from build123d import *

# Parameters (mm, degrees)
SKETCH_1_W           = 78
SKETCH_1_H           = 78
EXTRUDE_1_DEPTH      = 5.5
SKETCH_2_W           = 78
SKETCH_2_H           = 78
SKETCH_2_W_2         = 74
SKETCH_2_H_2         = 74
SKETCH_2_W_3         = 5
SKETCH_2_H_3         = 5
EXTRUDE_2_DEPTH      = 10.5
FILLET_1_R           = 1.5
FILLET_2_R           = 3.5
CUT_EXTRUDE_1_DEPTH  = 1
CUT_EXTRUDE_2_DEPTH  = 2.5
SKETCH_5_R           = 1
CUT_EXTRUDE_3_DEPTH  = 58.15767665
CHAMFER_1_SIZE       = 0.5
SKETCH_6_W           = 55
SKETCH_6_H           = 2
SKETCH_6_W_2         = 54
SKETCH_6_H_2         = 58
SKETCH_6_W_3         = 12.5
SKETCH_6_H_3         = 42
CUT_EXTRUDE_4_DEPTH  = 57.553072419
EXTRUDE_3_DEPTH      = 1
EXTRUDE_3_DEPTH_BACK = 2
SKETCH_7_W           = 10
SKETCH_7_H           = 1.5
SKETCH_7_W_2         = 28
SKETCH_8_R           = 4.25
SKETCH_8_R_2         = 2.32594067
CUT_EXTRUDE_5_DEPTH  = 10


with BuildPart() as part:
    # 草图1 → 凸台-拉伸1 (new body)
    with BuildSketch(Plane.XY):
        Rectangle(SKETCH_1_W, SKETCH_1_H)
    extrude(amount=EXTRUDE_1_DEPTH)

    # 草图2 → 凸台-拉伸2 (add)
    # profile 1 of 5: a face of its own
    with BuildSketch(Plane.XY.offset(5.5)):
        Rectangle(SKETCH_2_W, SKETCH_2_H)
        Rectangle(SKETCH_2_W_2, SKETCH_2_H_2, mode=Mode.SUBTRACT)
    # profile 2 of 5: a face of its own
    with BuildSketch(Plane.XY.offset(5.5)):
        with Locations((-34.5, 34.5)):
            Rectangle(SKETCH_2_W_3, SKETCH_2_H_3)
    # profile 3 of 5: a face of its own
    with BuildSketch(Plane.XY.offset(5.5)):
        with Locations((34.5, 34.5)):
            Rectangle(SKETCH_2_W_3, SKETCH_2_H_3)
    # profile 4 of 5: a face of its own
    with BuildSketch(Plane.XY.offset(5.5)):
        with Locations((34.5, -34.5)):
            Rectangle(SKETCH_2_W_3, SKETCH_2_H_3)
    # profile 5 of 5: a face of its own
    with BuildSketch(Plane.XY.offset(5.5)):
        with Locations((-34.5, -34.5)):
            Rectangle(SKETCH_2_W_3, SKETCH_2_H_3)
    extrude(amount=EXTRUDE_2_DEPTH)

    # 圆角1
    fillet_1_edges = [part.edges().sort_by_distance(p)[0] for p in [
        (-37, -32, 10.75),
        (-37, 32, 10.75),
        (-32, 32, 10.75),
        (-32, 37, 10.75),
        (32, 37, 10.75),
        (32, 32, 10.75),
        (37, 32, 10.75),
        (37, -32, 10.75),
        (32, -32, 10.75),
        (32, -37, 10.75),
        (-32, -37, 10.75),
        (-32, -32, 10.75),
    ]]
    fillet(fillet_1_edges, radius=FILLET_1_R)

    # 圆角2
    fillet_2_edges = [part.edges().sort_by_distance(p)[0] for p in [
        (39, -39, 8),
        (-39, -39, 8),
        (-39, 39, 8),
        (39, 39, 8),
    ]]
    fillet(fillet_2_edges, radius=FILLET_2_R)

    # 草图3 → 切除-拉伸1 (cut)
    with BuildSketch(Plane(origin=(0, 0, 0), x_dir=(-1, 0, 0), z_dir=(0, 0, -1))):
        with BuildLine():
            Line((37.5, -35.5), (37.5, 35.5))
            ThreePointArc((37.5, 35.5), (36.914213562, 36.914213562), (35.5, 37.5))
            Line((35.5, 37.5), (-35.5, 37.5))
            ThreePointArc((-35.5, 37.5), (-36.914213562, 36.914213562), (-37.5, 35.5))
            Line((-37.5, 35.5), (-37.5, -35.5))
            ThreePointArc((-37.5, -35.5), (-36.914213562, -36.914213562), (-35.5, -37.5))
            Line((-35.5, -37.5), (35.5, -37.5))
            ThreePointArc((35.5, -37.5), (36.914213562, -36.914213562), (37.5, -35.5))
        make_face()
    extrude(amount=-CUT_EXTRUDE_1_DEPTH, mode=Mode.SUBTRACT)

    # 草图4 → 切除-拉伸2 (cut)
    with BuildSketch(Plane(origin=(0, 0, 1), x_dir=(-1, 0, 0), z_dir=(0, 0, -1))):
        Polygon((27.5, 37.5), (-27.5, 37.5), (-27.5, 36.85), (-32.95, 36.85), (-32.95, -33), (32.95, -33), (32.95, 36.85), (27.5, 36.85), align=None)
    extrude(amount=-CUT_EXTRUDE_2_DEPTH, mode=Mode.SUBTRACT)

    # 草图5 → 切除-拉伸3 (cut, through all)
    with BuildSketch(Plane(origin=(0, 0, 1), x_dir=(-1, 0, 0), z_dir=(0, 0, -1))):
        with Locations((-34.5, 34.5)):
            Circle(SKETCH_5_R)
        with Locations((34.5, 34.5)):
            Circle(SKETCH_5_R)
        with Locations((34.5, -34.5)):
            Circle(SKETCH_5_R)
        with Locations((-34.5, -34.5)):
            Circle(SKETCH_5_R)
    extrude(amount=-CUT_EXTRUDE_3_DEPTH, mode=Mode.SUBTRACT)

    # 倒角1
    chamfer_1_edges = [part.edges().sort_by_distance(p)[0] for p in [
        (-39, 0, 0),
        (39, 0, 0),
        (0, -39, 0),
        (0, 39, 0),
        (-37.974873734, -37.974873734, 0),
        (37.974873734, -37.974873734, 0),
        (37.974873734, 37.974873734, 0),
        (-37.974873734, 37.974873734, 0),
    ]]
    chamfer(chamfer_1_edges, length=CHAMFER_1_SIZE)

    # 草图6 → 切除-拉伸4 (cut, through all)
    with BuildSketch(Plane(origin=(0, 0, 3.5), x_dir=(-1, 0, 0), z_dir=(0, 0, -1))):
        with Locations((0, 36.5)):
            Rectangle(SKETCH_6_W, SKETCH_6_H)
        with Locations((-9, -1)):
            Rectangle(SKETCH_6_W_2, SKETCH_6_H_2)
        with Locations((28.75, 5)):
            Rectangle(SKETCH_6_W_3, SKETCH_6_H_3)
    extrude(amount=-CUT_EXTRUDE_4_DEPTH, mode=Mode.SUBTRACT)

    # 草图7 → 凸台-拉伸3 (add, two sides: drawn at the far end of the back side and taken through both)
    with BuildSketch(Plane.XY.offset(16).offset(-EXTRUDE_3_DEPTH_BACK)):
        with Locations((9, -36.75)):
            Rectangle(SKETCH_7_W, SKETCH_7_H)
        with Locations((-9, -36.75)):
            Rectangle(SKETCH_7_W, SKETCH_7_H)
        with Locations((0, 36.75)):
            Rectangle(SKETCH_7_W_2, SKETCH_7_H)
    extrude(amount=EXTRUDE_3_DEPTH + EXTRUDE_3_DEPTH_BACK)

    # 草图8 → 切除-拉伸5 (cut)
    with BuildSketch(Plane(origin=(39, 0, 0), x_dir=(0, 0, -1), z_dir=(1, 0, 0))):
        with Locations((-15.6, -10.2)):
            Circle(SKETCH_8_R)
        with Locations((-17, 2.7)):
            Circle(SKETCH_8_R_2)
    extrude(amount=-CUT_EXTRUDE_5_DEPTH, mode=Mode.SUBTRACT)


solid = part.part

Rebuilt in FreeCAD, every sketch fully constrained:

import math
import FreeCAD as App
import Part
import Sketcher
from FreeCAD import Vector
Q = App.Units.Quantity


def edges_at(feature, points):
    """Names of the edges that pass closest to the given points."""
    edges = feature.Shape.Edges
    near = lambda p: min(range(len(edges)), key=lambda i: edges[i].distToShape(Part.Vertex(*p))[0])
    return sorted({f"Edge{near(p) + 1}" for p in points})


def add_polygon(sketch, points):
    """Adds a closed chain of lines whose ends are joined by coincident constraints."""
    first, n = sketch.GeometryCount, len(points)
    for a, b in zip(points, points[1:] + points[:1]):
        sketch.addGeometry(Part.LineSegment(App.Vector(*a, 0), App.Vector(*b, 0)), False)
    for i in range(n):
        sketch.addConstraint(Sketcher.Constraint("Coincident", first + i, 2, first + (i + 1) % n, 1))

doc = App.newDocument("Part")
body = doc.addObject("PartDesign::Body", "Body")

# Sketch on XY plane
sketch1 = body.newObject("Sketcher::SketchObject", "Sketch")
sketch1.AttachmentSupport = (doc.getObject("XY_Plane"), [""])
sketch1.MapMode = "FlatFace"
add_polygon(sketch1, [(-39, 39), (-39, -39), (39, -39), (39, 39)])  # lines 0-3
sketch1.addConstraint([
    Sketcher.Constraint("Vertical", 0),
    Sketcher.Constraint("Horizontal", 1),
    Sketcher.Constraint("Vertical", 2),
    Sketcher.Constraint("Horizontal", 3),
    Sketcher.Constraint("Symmetric", 0, 2, 2, 2, -1, 1),
    Sketcher.Constraint("Equal", 3, 0),
    Sketcher.Constraint("DistanceX", 1, 1, 1, 2, Q("78 mm")),
])
pad1 = body.newObject("PartDesign::Pad", "Pad")
pad1.Profile = sketch1
pad1.Length = 5.5

# Sketch on XY plane
sketch2 = body.newObject("Sketcher::SketchObject", "Sketch001")
sketch2.AttachmentSupport = (doc.getObject("XY_Plane"), [""])
sketch2.MapMode = "FlatFace"
sketch2.AttachmentOffset = App.Placement(Vector(0, 0, 5.5), App.Rotation())
add_polygon(sketch2, [(-39, 39), (-39, -39), (39, -39), (39, 39)])  # lines 0-3
add_polygon(sketch2, [(32, -37), (-32, -37), (-32, -32), (-37, -32), (-37, 32), (-32, 32), (-32, 37), (32, 37), (32, 32), (37, 32), (37, -32), (32, -32)])  # lines 4-15
sketch2.addConstraint([
    Sketcher.Constraint("Vertical", 0),
    Sketcher.Constraint("Horizontal", 1),
    Sketcher.Constraint("Vertical", 2),
    Sketcher.Constraint("Horizontal", 3),
    Sketcher.Constraint("Horizontal", 4),
    Sketcher.Constraint("Vertical", 5),
    Sketcher.Constraint("Horizontal", 6),
    Sketcher.Constraint("Vertical", 7),
    Sketcher.Constraint("Horizontal", 8),
    Sketcher.Constraint("Vertical", 9),
    Sketcher.Constraint("Horizontal", 10),
    Sketcher.Constraint("Vertical", 11),
    Sketcher.Constraint("Horizontal", 12),
    Sketcher.Constraint("Vertical", 13),
    Sketcher.Constraint("Horizontal", 14),
    Sketcher.Constraint("Vertical", 15),
    Sketcher.Constraint("Symmetric", 0, 2, 2, 2, -1, 1),
    Sketcher.Constraint("Symmetric", 4, 2, 10, 2, -1, 1),
    Sketcher.Constraint("Symmetric", 6, 2, 12, 2, -1, 1),
    Sketcher.Constraint("Symmetric", 8, 2, 14, 2, -1, 1),
    Sketcher.Constraint("Symmetric", 8, 2, 11, 2, -2),
    Sketcher.Constraint("Equal", 3, 0),
    Sketcher.Constraint("Equal", 14, 5),
    Sketcher.Constraint("Equal", 10, 7),
    Sketcher.Constraint("DistanceX", 1, 1, 1, 2, Q("78 mm")),
    Sketcher.Constraint("DistanceX", 4, 2, 4, 1, Q("64 mm")),
    Sketcher.Constraint("DistanceX", 6, 2, 6, 1, Q("5 mm")),
])
pad2 = body.newObject("PartDesign::Pad", "Pad001")
pad2.Profile = sketch2
pad2.Length = 10.5
doc.recompute()

fillet = body.newObject("PartDesign::Fillet", "Fillet")
fillet.Base = (pad2, edges_at(pad2, [
    (-37, -32, 10.75),
    (-37, 32, 10.75),
    (-32, 32, 10.75),
    (-32, 37, 10.75),
    (32, 37, 10.75),
    (32, 32, 10.75),
    (37, 32, 10.75),
    (37, -32, 10.75),
    (32, -32, 10.75),
    (32, -37, 10.75),
    (-32, -37, 10.75),
    (-32, -32, 10.75),
]))
fillet.Radius = 1.5
doc.recompute()

fillet2 = body.newObject("PartDesign::Fillet", "Fillet001")
fillet2.Base = (fillet, edges_at(fillet, [
    (39, -39, 8),
    (-39, -39, 8),
    (-39, 39, 8),
    (39, 39, 8),
]))
fillet2.Radius = 3.5

# Sketch on XY plane
sketch3 = body.newObject("Sketcher::SketchObject", "Sketch002")
sketch3.AttachmentSupport = (doc.getObject("XY_Plane"), [""])
sketch3.MapMode = "FlatFace"
sketch3.addGeometry([
    Part.LineSegment(Vector(-37.5, -35.5, 0), Vector(-37.5, 35.5, 0)),  # 0
    Part.ArcOfCircle(Part.Circle(Vector(-35.5, 35.5, 0), Vector(0, 0, 1), 2), math.radians(90), math.radians(180)),  # 1
    Part.LineSegment(Vector(-35.5, 37.5, 0), Vector(35.5, 37.5, 0)),  # 2
    Part.ArcOfCircle(Part.Circle(Vector(35.5, 35.5, 0), Vector(0, 0, 1), 2), math.radians(0), math.radians(90)),  # 3
    Part.LineSegment(Vector(37.5, 35.5, 0), Vector(37.5, -35.5, 0)),  # 4
    Part.ArcOfCircle(Part.Circle(Vector(35.5, -35.5, 0), Vector(0, 0, 1), 2), math.radians(-90), math.radians(0)),  # 5
    Part.LineSegment(Vector(35.5, -37.5, 0), Vector(-35.5, -37.5, 0)),  # 6
    Part.ArcOfCircle(Part.Circle(Vector(-35.5, -35.5, 0), Vector(0, 0, 1), 2), math.radians(-180), math.radians(-90)),  # 7
], False)
sketch3.addConstraint([
    Sketcher.Constraint("Tangent", 0, 2, 1, 2),
    Sketcher.Constraint("Tangent", 1, 1, 2, 1),
    Sketcher.Constraint("Tangent", 2, 2, 3, 2),
    Sketcher.Constraint("Tangent", 3, 1, 4, 1),
    Sketcher.Constraint("Tangent", 4, 2, 5, 2),
    Sketcher.Constraint("Tangent", 5, 1, 6, 1),
    Sketcher.Constraint("Tangent", 6, 2, 7, 2),
    Sketcher.Constraint("Tangent", 7, 1, 0, 1),
    Sketcher.Constraint("Vertical", 0),
    Sketcher.Constraint("Horizontal", 2),
    Sketcher.Constraint("Vertical", 4),
    Sketcher.Constraint("Horizontal", 6),
    Sketcher.Constraint("Equal", 1, 3),
    Sketcher.Constraint("Equal", 3, 5),
    Sketcher.Constraint("Equal", 5, 7),
    Sketcher.Constraint("Symmetric", 1, 3, 5, 3, -1, 1),
    Sketcher.Constraint("Equal", 6, 0),
    Sketcher.Constraint("Radius", 1, Q("2 mm")),
    Sketcher.Constraint("DistanceX", 2, 1, 2, 2, Q("71 mm")),
])
pocket1 = body.newObject("PartDesign::Pocket", "Pocket")
pocket1.Profile = sketch3
pocket1.Length = 1
pocket1.Reversed = True

# Sketch on XY plane
sketch4 = body.newObject("Sketcher::SketchObject", "Sketch003")
sketch4.AttachmentSupport = (doc.getObject("XY_Plane"), [""])
sketch4.MapMode = "FlatFace"
sketch4.AttachmentOffset = App.Placement(Vector(0, 0, 1), App.Rotation())
add_polygon(sketch4, [(-27.5, 37.5), (27.5, 37.5), (27.5, 36.9), (33, 36.9), (33, -33), (-33, -33), (-33, 36.9), (-27.5, 36.9)])  # lines 0-7
sketch4.addConstraint([
    Sketcher.Constraint("Horizontal", 0),
    Sketcher.Constraint("Vertical", 1),
    Sketcher.Constraint("Horizontal", 2),
    Sketcher.Constraint("Vertical", 3),
    Sketcher.Constraint("Horizontal", 4),
    Sketcher.Constraint("Vertical", 5),
    Sketcher.Constraint("Horizontal", 6),
    Sketcher.Constraint("Vertical", 7),
    Sketcher.Constraint("Symmetric", 2, 2, 5, 2, -2),
    Sketcher.Constraint("Equal", 2, 6),
    Sketcher.Constraint("DistanceX", 0, 1, 0, 2, Q("55 mm")),
    Sketcher.Constraint("DistanceX", 4, 2, 4, 1, Q("65.9 mm")),
    Sketcher.Constraint("DistanceY", 3, 2, -1, 1, Q("33 mm")),
    Sketcher.Constraint("DistanceY", 1, 2, 1, 1, Q("0.65 mm")),
    Sketcher.Constraint("DistanceY", 3, 2, 3, 1, Q("69.85 mm")),
])
pocket2 = body.newObject("PartDesign::Pocket", "Pocket001")
pocket2.Profile = sketch4
pocket2.Length = 2.5
pocket2.Reversed = True

# Sketch on XY plane
sketch5 = body.newObject("Sketcher::SketchObject", "Sketch004")
sketch5.AttachmentSupport = (doc.getObject("XY_Plane"), [""])
sketch5.MapMode = "FlatFace"
sketch5.AttachmentOffset = App.Placement(Vector(0, 0, 1), App.Rotation())
sketch5.addGeometry([
    Part.Circle(Vector(34.5, 34.5, 0), Vector(0, 0, 1), 1),
    Part.Circle(Vector(-34.5, 34.5, 0), Vector(0, 0, 1), 1),
    Part.Circle(Vector(-34.5, -34.5, 0), Vector(0, 0, 1), 1),
    Part.Circle(Vector(34.5, -34.5, 0), Vector(0, 0, 1), 1),
], False)
sketch5.addConstraint([
    Sketcher.Constraint("Equal", 0, 1),
    Sketcher.Constraint("Equal", 1, 2),
    Sketcher.Constraint("Equal", 2, 3),
    Sketcher.Constraint("Symmetric", 0, 3, 2, 3, -1, 1),
    Sketcher.Constraint("Symmetric", 1, 3, 3, 3, -1, 1),
    Sketcher.Constraint("Symmetric", 0, 3, 1, 3, -2),
    Sketcher.Constraint("Diameter", 0, Q("2 mm")),
    Sketcher.Constraint("DistanceX", 1, 3, 0, 3, Q("69 mm")),
    Sketcher.Constraint("DistanceY", 2, 3, 1, 3, Q("69 mm")),
])
pocket3 = body.newObject("PartDesign::Pocket", "Pocket002")
pocket3.Profile = sketch5
pocket3.Type = "ThroughAll"
pocket3.Reversed = True
doc.recompute()

chamfer = body.newObject("PartDesign::Chamfer", "Chamfer")
chamfer.Base = (pocket3, edges_at(pocket3, [
    (-39, 0, 0),
    (39, 0, 0),
    (0, -39, 0),
    (0, 39, 0),
    (-37.975, -37.975, 0),
    (37.975, -37.975, 0),
    (37.975, 37.975, 0),
    (-37.975, 37.975, 0),
]))
chamfer.Size = 0.5

# Sketch on XY plane
sketch6 = body.newObject("Sketcher::SketchObject", "Sketch005")
sketch6.AttachmentSupport = (doc.getObject("XY_Plane"), [""])
sketch6.MapMode = "FlatFace"
sketch6.AttachmentOffset = App.Placement(Vector(0, 0, 3.5), App.Rotation())
add_polygon(sketch6, [(27.5, 37.5), (27.5, 35.5), (-27.5, 35.5), (-27.5, 37.5)])  # lines 0-3
add_polygon(sketch6, [(36, 28), (36, -30), (-18, -30), (-18, 28)])  # lines 4-7
add_polygon(sketch6, [(-22.5, 26), (-22.5, -16), (-35, -16), (-35, 26)])  # lines 8-11
sketch6.addConstraint([
    Sketcher.Constraint("Vertical", 0),
    Sketcher.Constraint("Horizontal", 1),
    Sketcher.Constraint("Vertical", 2),
    Sketcher.Constraint("Horizontal", 3),
    Sketcher.Constraint("Vertical", 4),
    Sketcher.Constraint("Horizontal", 5),
    Sketcher.Constraint("Vertical", 6),
    Sketcher.Constraint("Horizontal", 7),
    Sketcher.Constraint("Vertical", 8),
    Sketcher.Constraint("Horizontal", 9),
    Sketcher.Constraint("Vertical", 10),
    Sketcher.Constraint("Horizontal", 11),
    Sketcher.Constraint("DistanceX", 1, 2, 1, 1, Q("55 mm")),
    Sketcher.Constraint("DistanceX", 5, 2, 5, 1, Q("54 mm")),
    Sketcher.Constraint("DistanceY", 0, 2, 0, 1, Q("2 mm")),
    Sketcher.Constraint("DistanceY", 4, 2, 4, 1, Q("58 mm")),
    Sketcher.Constraint("DistanceY", 8, 2, 8, 1, Q("42 mm")),
    Sketcher.Constraint("DistanceX", 9, 2, 9, 1, Q("12.5 mm")),
    Sketcher.Constraint("DistanceX", -1, 1, 4, 2, Q("36 mm")),
    Sketcher.Constraint("DistanceY", 4, 2, -1, 1, Q("30 mm")),
    Sketcher.Constraint("DistanceY", 8, 2, -1, 1, Q("16 mm")),
    Sketcher.Constraint("DistanceX", 9, 2, -1, 1, Q("35 mm")),
    Sketcher.Constraint("DistanceX", 1, 2, 8, 2, Q("5 mm")),
    Sketcher.Constraint("DistanceY", -1, 1, 0, 2, Q("35.5 mm")),
])
pocket4 = body.newObject("PartDesign::Pocket", "Pocket003")
pocket4.Profile = sketch6
pocket4.Type = "ThroughAll"
pocket4.Reversed = True

# Sketch on XY plane
sketch7 = body.newObject("Sketcher::SketchObject", "Sketch006")
sketch7.AttachmentSupport = (doc.getObject("XY_Plane"), [""])
sketch7.MapMode = "FlatFace"
sketch7.AttachmentOffset = App.Placement(Vector(0, 0, 16), App.Rotation())
add_polygon(sketch7, [(4, -36), (4, -37.5), (14, -37.5), (14, -36)])  # lines 0-3
add_polygon(sketch7, [(-14, -36), (-14, -37.5), (-4, -37.5), (-4, -36)])  # lines 4-7
add_polygon(sketch7, [(-14, 37.5), (-14, 36), (14, 36), (14, 37.5)])  # lines 8-11
sketch7.addConstraint([
    Sketcher.Constraint("Vertical", 0),
    Sketcher.Constraint("Horizontal", 1),
    Sketcher.Constraint("Vertical", 2),
    Sketcher.Constraint("Horizontal", 3),
    Sketcher.Constraint("Vertical", 4),
    Sketcher.Constraint("Horizontal", 5),
    Sketcher.Constraint("Vertical", 6),
    Sketcher.Constraint("Horizontal", 7),
    Sketcher.Constraint("Vertical", 8),
    Sketcher.Constraint("Horizontal", 9),
    Sketcher.Constraint("Vertical", 10),
    Sketcher.Constraint("Horizontal", 11),
    Sketcher.Constraint("Symmetric", 2, 2, 8, 2, -1, 1),
    Sketcher.Constraint("Symmetric", 7, 2, 9, 2, -1, 1),
    Sketcher.Constraint("Symmetric", 1, 2, 4, 2, -2),
    Sketcher.Constraint("Equal", 3, 5),
    Sketcher.Constraint("Equal", 6, 8),
    Sketcher.Constraint("DistanceX", 1, 1, 1, 2, Q("10 mm")),
    Sketcher.Constraint("DistanceX", 9, 1, 9, 2, Q("28 mm")),
    Sketcher.Constraint("DistanceY", 0, 2, 0, 1, Q("1.5 mm")),
    Sketcher.Constraint("DistanceY", 2, 2, -1, 1, Q("36 mm")),
])
pad3 = body.newObject("PartDesign::Pad", "Pad002")
pad3.Profile = sketch7
pad3.Type = "TwoLengths"
pad3.Length = 1
pad3.Length2 = 2

# Sketch on YZ plane
sketch8 = body.newObject("Sketcher::SketchObject", "Sketch007")
sketch8.AttachmentSupport = (doc.getObject("YZ_Plane"), [""])
sketch8.MapMode = "FlatFace"
sketch8.AttachmentOffset = App.Placement(Vector(0, 0, 39), App.Rotation())
sketch8.addGeometry([
    Part.Circle(Vector(-10.2, 15.6, 0), Vector(0, 0, 1), 4.2),
    Part.Circle(Vector(2.7, 17, 0), Vector(0, 0, 1), 2.3),
], False)
sketch8.addConstraint([
    Sketcher.Constraint("Diameter", 0, Q("8.5 mm")),
    Sketcher.Constraint("DistanceY", -1, 1, 1, 3, Q("17 mm")),
    Sketcher.Constraint("DistanceX", 0, 3, -1, 1, Q("10.2 mm")),
    Sketcher.Constraint("DistanceY", -1, 1, 0, 3, Q("15.6 mm")),
    Sketcher.Constraint("DistanceX", -1, 1, 1, 3, Q("2.7 mm")),
    Sketcher.Constraint("Diameter", 1, Q("4.651881 mm")),
])
pocket5 = body.newObject("PartDesign::Pocket", "Pocket004")
pocket5.Profile = sketch8
pocket5.Length = 10

doc.recompute()
